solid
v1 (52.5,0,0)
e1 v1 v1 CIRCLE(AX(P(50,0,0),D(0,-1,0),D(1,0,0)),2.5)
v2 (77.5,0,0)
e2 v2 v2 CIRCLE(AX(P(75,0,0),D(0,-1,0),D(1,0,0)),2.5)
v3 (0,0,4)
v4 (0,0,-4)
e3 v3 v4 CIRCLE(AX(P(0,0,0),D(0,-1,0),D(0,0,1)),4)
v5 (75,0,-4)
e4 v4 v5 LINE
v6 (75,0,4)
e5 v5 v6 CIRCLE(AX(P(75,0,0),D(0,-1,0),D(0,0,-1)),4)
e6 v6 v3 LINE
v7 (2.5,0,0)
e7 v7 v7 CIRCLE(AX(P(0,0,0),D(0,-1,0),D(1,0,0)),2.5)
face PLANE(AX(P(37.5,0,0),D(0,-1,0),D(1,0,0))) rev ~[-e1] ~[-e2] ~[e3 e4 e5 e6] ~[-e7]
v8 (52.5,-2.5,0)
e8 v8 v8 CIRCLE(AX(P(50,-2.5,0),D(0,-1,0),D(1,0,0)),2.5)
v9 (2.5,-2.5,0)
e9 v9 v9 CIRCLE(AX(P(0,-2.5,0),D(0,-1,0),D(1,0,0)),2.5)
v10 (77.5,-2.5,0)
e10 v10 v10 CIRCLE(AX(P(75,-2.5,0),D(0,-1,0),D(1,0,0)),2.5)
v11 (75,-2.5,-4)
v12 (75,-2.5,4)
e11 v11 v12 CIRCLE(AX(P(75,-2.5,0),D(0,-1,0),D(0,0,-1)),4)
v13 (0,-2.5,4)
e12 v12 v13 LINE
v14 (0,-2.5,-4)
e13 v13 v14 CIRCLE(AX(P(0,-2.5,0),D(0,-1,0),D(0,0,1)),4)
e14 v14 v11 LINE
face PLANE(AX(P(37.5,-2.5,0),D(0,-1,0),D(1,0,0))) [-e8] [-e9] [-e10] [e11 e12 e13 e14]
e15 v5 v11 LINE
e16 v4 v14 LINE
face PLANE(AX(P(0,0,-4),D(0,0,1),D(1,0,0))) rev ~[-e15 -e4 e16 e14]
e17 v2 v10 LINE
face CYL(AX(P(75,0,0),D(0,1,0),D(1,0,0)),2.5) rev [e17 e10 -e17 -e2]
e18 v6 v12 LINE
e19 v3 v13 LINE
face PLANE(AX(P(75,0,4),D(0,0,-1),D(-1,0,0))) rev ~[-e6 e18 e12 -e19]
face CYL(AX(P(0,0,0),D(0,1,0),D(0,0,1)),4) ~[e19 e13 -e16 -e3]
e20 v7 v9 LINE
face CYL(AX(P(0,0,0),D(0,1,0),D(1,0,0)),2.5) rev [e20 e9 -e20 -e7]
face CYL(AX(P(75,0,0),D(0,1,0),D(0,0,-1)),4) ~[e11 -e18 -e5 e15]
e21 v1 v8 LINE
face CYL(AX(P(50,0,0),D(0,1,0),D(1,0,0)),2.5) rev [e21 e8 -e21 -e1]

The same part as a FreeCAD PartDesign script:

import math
import FreeCAD as App
import Part
import Sketcher

V = App.Vector
Q = App.Units.Quantity

doc = App.newDocument("Part")
body = doc.addObject("PartDesign::Body", "Body")

# Sketch on XZ plane
sketch1 = body.newObject("Sketcher::SketchObject", "Sketch")
sketch1.AttachmentSupport = (doc.getObject("XZ_Plane"), [""])
sketch1.MapMode = "FlatFace"
sketch1.addGeometry(Part.LineSegment(V(75, 4, 0), V(0, 4, 0)), False)
sketch1.addGeometry(Part.ArcOfCircle(Part.Circle(V(0, 0, 0), V(0, 0, 1), 4), math.radians(90), math.radians(270)), False)
sketch1.addGeometry(Part.LineSegment(V(0, -4, 0), V(75, -4, 0)), False)
sketch1.addGeometry(Part.ArcOfCircle(Part.Circle(V(75, 0, 0), V(0, 0, 1), 4), math.radians(-90), math.radians(90)), False)
sketch1.addGeometry(Part.Circle(V(0, 0, 0), V(0, 0, 1), 2.5), False)
sketch1.addGeometry(Part.Circle(V(50, 0, 0), V(0, 0, 1), 2.5), False)
sketch1.addGeometry(Part.Circle(V(75, 0, 0), V(0, 0, 1), 2.5), False)
sketch1.addConstraint(Sketcher.Constraint("Tangent", 0, 2, 1, 1))
sketch1.addConstraint(Sketcher.Constraint("Tangent", 1, 2, 2, 1))
sketch1.addConstraint(Sketcher.Constraint("Tangent", 2, 2, 3, 1))
sketch1.addConstraint(Sketcher.Constraint("Tangent", 3, 2, 0, 1))
sketch1.addConstraint(Sketcher.Constraint("Horizontal", 0))
sketch1.addConstraint(Sketcher.Constraint("Horizontal", 2))
sketch1.addConstraint(Sketcher.Constraint("Coincident", 1, 3, -1, 1))
sketch1.addConstraint(Sketcher.Constraint("Coincident", 4, 3, -1, 1))
sketch1.addConstraint(Sketcher.Constraint("Coincident", 6, 3, 3, 3))
sketch1.addConstraint(Sketcher.Constraint("Equal", 4, 5))
sketch1.addConstraint(Sketcher.Constraint("Equal", 5, 6))
sketch1.addConstraint(Sketcher.Constraint("PointOnObject", 5, 3, -1))
sketch1.addConstraint(Sketcher.Constraint("Diameter", 4, Q("5 mm")))
sketch1.addConstraint(Sketcher.Constraint("Radius", 1, Q("4 mm")))
sketch1.addConstraint(Sketcher.Constraint("DistanceX", 0, 2, 0, 1, Q("75 mm")))
sketch1.addConstraint(Sketcher.Constraint("DistanceX", -1, 1, 5, 3, Q("50 mm")))
pad1 = body.newObject("PartDesign::Pad", "Pad")
pad1.Profile = sketch1
pad1.Length = 2.5

doc.recompute()
